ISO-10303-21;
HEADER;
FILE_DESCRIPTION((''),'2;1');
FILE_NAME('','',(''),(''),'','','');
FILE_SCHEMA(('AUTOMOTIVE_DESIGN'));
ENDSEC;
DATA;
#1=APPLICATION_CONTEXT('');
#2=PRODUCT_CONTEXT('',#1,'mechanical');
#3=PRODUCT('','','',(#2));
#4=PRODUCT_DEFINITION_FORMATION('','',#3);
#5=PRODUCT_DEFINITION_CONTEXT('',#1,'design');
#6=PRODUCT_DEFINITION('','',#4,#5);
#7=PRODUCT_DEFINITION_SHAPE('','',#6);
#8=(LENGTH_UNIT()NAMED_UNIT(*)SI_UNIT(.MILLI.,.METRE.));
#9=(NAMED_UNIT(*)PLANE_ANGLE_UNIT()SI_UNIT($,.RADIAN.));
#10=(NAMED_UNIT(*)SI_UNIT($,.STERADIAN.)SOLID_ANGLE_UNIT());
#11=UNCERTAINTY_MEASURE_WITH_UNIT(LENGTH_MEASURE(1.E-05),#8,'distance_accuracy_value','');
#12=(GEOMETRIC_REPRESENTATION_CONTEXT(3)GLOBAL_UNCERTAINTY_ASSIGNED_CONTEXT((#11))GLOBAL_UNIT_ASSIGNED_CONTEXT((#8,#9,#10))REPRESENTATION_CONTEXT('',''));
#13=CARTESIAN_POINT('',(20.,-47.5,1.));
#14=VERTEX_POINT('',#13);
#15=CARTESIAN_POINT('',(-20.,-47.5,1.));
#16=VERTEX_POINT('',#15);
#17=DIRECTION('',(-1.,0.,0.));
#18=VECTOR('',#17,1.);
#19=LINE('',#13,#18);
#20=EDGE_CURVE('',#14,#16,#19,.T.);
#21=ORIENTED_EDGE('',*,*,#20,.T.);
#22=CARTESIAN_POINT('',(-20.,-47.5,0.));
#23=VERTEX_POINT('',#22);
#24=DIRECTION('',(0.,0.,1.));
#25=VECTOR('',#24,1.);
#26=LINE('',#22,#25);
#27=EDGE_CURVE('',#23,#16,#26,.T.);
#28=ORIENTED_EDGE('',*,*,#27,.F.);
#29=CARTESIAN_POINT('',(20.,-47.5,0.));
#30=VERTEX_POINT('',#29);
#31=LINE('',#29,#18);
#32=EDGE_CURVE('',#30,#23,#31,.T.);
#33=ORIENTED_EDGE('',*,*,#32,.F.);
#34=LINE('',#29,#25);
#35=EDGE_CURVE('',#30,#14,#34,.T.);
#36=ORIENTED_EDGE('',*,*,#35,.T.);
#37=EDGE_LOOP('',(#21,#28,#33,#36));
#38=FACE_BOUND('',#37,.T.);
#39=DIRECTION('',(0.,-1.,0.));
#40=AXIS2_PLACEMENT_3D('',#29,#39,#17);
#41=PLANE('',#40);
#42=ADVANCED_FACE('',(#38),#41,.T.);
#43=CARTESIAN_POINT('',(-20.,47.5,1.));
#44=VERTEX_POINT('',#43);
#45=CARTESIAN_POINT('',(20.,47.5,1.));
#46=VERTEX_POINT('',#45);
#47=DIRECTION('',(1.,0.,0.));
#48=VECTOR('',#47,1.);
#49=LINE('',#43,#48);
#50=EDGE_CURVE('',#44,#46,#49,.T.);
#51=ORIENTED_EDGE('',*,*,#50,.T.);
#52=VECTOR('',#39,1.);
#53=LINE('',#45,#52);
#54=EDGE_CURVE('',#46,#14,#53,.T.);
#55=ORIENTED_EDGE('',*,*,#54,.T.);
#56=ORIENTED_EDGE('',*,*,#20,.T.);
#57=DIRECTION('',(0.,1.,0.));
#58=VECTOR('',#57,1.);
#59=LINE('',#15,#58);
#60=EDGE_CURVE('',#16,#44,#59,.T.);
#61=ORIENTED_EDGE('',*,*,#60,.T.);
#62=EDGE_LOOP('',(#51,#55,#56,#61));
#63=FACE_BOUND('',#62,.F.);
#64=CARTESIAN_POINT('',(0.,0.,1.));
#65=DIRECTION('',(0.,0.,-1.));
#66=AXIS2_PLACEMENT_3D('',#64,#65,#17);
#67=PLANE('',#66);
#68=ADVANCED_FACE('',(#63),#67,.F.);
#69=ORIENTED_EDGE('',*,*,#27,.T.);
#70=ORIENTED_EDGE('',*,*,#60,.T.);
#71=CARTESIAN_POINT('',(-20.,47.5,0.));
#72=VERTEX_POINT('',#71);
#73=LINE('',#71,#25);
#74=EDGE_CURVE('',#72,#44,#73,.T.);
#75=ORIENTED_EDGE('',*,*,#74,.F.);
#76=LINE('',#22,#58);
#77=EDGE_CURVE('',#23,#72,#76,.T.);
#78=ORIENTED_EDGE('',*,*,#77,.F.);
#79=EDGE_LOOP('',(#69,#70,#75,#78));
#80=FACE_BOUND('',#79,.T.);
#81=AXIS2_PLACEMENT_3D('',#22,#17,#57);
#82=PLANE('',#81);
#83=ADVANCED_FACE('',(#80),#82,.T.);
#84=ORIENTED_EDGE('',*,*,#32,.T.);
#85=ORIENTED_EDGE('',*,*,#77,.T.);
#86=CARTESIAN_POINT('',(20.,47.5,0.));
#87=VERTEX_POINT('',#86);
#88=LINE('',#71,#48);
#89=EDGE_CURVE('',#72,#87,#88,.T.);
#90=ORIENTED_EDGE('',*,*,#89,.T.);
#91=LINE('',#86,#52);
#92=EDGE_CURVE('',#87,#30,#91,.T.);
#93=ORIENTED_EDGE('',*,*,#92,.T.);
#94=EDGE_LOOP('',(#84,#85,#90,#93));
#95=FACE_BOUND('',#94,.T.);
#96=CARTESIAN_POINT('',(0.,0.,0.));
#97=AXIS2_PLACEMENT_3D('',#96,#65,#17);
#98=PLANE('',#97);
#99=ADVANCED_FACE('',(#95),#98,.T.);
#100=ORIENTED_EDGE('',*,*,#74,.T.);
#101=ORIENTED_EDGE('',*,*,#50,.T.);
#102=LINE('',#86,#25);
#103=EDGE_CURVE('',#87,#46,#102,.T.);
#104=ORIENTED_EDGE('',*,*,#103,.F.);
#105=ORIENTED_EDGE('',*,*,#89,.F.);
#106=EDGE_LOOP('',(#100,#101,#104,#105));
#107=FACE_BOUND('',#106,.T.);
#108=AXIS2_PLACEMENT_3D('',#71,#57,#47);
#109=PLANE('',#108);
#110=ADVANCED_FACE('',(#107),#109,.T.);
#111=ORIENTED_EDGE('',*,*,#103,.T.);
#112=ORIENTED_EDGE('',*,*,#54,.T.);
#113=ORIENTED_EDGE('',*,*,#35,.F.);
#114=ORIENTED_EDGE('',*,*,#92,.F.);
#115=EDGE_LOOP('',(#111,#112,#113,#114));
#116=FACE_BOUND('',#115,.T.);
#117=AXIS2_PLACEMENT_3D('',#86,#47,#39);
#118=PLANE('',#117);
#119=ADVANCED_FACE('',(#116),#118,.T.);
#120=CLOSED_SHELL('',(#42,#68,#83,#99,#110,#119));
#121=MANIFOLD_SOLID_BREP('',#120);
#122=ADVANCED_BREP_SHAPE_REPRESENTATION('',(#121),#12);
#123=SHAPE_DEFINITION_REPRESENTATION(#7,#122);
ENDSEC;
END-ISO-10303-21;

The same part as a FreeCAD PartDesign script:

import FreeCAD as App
import Part
import Sketcher

V = App.Vector
Q = App.Units.Quantity


def add_polygon(sketch, points):
    """Adds a closed chain of lines whose ends are joined by coincident constraints."""
    first, n = sketch.GeometryCount, len(points)
    for a, b in zip(points, points[1:] + points[:1]):
        sketch.addGeometry(Part.LineSegment(App.Vector(*a, 0), App.Vector(*b, 0)), False)
    for i in range(n):
        sketch.addConstraint(Sketcher.Constraint("Coincident", first + i, 2, first + (i + 1) % n, 1))

doc = App.newDocument("Part")
body = doc.addObject("PartDesign::Body", "Body")

# Sketch on XY plane
sketch1 = body.newObject("Sketcher::SketchObject", "Sketch")
sketch1.AttachmentSupport = (doc.getObject("XY_Plane"), [""])
sketch1.MapMode = "FlatFace"
add_polygon(sketch1, [(20, 48), (-20, 48), (-20, -48), (20, -48)])  # lines 0-3
sketch1.addConstraint([
    Sketcher.Constraint("Horizontal", 0),
    Sketcher.Constraint("Vertical", 1),
    Sketcher.Constraint("Horizontal", 2),
    Sketcher.Constraint("Vertical", 3),
    Sketcher.Constraint("Symmetric", 0, 2, 2, 2, -1, 1),
    Sketcher.Constraint("DistanceX", 0, 2, -1, 1, Q("20 mm")),
    Sketcher.Constraint("DistanceY", 1, 2, 1, 1, Q("95 mm")),
])
pad1 = body.newObject("PartDesign::Pad", "Pad")
pad1.Profile = sketch1
pad1.Length = 1

doc.recompute()
